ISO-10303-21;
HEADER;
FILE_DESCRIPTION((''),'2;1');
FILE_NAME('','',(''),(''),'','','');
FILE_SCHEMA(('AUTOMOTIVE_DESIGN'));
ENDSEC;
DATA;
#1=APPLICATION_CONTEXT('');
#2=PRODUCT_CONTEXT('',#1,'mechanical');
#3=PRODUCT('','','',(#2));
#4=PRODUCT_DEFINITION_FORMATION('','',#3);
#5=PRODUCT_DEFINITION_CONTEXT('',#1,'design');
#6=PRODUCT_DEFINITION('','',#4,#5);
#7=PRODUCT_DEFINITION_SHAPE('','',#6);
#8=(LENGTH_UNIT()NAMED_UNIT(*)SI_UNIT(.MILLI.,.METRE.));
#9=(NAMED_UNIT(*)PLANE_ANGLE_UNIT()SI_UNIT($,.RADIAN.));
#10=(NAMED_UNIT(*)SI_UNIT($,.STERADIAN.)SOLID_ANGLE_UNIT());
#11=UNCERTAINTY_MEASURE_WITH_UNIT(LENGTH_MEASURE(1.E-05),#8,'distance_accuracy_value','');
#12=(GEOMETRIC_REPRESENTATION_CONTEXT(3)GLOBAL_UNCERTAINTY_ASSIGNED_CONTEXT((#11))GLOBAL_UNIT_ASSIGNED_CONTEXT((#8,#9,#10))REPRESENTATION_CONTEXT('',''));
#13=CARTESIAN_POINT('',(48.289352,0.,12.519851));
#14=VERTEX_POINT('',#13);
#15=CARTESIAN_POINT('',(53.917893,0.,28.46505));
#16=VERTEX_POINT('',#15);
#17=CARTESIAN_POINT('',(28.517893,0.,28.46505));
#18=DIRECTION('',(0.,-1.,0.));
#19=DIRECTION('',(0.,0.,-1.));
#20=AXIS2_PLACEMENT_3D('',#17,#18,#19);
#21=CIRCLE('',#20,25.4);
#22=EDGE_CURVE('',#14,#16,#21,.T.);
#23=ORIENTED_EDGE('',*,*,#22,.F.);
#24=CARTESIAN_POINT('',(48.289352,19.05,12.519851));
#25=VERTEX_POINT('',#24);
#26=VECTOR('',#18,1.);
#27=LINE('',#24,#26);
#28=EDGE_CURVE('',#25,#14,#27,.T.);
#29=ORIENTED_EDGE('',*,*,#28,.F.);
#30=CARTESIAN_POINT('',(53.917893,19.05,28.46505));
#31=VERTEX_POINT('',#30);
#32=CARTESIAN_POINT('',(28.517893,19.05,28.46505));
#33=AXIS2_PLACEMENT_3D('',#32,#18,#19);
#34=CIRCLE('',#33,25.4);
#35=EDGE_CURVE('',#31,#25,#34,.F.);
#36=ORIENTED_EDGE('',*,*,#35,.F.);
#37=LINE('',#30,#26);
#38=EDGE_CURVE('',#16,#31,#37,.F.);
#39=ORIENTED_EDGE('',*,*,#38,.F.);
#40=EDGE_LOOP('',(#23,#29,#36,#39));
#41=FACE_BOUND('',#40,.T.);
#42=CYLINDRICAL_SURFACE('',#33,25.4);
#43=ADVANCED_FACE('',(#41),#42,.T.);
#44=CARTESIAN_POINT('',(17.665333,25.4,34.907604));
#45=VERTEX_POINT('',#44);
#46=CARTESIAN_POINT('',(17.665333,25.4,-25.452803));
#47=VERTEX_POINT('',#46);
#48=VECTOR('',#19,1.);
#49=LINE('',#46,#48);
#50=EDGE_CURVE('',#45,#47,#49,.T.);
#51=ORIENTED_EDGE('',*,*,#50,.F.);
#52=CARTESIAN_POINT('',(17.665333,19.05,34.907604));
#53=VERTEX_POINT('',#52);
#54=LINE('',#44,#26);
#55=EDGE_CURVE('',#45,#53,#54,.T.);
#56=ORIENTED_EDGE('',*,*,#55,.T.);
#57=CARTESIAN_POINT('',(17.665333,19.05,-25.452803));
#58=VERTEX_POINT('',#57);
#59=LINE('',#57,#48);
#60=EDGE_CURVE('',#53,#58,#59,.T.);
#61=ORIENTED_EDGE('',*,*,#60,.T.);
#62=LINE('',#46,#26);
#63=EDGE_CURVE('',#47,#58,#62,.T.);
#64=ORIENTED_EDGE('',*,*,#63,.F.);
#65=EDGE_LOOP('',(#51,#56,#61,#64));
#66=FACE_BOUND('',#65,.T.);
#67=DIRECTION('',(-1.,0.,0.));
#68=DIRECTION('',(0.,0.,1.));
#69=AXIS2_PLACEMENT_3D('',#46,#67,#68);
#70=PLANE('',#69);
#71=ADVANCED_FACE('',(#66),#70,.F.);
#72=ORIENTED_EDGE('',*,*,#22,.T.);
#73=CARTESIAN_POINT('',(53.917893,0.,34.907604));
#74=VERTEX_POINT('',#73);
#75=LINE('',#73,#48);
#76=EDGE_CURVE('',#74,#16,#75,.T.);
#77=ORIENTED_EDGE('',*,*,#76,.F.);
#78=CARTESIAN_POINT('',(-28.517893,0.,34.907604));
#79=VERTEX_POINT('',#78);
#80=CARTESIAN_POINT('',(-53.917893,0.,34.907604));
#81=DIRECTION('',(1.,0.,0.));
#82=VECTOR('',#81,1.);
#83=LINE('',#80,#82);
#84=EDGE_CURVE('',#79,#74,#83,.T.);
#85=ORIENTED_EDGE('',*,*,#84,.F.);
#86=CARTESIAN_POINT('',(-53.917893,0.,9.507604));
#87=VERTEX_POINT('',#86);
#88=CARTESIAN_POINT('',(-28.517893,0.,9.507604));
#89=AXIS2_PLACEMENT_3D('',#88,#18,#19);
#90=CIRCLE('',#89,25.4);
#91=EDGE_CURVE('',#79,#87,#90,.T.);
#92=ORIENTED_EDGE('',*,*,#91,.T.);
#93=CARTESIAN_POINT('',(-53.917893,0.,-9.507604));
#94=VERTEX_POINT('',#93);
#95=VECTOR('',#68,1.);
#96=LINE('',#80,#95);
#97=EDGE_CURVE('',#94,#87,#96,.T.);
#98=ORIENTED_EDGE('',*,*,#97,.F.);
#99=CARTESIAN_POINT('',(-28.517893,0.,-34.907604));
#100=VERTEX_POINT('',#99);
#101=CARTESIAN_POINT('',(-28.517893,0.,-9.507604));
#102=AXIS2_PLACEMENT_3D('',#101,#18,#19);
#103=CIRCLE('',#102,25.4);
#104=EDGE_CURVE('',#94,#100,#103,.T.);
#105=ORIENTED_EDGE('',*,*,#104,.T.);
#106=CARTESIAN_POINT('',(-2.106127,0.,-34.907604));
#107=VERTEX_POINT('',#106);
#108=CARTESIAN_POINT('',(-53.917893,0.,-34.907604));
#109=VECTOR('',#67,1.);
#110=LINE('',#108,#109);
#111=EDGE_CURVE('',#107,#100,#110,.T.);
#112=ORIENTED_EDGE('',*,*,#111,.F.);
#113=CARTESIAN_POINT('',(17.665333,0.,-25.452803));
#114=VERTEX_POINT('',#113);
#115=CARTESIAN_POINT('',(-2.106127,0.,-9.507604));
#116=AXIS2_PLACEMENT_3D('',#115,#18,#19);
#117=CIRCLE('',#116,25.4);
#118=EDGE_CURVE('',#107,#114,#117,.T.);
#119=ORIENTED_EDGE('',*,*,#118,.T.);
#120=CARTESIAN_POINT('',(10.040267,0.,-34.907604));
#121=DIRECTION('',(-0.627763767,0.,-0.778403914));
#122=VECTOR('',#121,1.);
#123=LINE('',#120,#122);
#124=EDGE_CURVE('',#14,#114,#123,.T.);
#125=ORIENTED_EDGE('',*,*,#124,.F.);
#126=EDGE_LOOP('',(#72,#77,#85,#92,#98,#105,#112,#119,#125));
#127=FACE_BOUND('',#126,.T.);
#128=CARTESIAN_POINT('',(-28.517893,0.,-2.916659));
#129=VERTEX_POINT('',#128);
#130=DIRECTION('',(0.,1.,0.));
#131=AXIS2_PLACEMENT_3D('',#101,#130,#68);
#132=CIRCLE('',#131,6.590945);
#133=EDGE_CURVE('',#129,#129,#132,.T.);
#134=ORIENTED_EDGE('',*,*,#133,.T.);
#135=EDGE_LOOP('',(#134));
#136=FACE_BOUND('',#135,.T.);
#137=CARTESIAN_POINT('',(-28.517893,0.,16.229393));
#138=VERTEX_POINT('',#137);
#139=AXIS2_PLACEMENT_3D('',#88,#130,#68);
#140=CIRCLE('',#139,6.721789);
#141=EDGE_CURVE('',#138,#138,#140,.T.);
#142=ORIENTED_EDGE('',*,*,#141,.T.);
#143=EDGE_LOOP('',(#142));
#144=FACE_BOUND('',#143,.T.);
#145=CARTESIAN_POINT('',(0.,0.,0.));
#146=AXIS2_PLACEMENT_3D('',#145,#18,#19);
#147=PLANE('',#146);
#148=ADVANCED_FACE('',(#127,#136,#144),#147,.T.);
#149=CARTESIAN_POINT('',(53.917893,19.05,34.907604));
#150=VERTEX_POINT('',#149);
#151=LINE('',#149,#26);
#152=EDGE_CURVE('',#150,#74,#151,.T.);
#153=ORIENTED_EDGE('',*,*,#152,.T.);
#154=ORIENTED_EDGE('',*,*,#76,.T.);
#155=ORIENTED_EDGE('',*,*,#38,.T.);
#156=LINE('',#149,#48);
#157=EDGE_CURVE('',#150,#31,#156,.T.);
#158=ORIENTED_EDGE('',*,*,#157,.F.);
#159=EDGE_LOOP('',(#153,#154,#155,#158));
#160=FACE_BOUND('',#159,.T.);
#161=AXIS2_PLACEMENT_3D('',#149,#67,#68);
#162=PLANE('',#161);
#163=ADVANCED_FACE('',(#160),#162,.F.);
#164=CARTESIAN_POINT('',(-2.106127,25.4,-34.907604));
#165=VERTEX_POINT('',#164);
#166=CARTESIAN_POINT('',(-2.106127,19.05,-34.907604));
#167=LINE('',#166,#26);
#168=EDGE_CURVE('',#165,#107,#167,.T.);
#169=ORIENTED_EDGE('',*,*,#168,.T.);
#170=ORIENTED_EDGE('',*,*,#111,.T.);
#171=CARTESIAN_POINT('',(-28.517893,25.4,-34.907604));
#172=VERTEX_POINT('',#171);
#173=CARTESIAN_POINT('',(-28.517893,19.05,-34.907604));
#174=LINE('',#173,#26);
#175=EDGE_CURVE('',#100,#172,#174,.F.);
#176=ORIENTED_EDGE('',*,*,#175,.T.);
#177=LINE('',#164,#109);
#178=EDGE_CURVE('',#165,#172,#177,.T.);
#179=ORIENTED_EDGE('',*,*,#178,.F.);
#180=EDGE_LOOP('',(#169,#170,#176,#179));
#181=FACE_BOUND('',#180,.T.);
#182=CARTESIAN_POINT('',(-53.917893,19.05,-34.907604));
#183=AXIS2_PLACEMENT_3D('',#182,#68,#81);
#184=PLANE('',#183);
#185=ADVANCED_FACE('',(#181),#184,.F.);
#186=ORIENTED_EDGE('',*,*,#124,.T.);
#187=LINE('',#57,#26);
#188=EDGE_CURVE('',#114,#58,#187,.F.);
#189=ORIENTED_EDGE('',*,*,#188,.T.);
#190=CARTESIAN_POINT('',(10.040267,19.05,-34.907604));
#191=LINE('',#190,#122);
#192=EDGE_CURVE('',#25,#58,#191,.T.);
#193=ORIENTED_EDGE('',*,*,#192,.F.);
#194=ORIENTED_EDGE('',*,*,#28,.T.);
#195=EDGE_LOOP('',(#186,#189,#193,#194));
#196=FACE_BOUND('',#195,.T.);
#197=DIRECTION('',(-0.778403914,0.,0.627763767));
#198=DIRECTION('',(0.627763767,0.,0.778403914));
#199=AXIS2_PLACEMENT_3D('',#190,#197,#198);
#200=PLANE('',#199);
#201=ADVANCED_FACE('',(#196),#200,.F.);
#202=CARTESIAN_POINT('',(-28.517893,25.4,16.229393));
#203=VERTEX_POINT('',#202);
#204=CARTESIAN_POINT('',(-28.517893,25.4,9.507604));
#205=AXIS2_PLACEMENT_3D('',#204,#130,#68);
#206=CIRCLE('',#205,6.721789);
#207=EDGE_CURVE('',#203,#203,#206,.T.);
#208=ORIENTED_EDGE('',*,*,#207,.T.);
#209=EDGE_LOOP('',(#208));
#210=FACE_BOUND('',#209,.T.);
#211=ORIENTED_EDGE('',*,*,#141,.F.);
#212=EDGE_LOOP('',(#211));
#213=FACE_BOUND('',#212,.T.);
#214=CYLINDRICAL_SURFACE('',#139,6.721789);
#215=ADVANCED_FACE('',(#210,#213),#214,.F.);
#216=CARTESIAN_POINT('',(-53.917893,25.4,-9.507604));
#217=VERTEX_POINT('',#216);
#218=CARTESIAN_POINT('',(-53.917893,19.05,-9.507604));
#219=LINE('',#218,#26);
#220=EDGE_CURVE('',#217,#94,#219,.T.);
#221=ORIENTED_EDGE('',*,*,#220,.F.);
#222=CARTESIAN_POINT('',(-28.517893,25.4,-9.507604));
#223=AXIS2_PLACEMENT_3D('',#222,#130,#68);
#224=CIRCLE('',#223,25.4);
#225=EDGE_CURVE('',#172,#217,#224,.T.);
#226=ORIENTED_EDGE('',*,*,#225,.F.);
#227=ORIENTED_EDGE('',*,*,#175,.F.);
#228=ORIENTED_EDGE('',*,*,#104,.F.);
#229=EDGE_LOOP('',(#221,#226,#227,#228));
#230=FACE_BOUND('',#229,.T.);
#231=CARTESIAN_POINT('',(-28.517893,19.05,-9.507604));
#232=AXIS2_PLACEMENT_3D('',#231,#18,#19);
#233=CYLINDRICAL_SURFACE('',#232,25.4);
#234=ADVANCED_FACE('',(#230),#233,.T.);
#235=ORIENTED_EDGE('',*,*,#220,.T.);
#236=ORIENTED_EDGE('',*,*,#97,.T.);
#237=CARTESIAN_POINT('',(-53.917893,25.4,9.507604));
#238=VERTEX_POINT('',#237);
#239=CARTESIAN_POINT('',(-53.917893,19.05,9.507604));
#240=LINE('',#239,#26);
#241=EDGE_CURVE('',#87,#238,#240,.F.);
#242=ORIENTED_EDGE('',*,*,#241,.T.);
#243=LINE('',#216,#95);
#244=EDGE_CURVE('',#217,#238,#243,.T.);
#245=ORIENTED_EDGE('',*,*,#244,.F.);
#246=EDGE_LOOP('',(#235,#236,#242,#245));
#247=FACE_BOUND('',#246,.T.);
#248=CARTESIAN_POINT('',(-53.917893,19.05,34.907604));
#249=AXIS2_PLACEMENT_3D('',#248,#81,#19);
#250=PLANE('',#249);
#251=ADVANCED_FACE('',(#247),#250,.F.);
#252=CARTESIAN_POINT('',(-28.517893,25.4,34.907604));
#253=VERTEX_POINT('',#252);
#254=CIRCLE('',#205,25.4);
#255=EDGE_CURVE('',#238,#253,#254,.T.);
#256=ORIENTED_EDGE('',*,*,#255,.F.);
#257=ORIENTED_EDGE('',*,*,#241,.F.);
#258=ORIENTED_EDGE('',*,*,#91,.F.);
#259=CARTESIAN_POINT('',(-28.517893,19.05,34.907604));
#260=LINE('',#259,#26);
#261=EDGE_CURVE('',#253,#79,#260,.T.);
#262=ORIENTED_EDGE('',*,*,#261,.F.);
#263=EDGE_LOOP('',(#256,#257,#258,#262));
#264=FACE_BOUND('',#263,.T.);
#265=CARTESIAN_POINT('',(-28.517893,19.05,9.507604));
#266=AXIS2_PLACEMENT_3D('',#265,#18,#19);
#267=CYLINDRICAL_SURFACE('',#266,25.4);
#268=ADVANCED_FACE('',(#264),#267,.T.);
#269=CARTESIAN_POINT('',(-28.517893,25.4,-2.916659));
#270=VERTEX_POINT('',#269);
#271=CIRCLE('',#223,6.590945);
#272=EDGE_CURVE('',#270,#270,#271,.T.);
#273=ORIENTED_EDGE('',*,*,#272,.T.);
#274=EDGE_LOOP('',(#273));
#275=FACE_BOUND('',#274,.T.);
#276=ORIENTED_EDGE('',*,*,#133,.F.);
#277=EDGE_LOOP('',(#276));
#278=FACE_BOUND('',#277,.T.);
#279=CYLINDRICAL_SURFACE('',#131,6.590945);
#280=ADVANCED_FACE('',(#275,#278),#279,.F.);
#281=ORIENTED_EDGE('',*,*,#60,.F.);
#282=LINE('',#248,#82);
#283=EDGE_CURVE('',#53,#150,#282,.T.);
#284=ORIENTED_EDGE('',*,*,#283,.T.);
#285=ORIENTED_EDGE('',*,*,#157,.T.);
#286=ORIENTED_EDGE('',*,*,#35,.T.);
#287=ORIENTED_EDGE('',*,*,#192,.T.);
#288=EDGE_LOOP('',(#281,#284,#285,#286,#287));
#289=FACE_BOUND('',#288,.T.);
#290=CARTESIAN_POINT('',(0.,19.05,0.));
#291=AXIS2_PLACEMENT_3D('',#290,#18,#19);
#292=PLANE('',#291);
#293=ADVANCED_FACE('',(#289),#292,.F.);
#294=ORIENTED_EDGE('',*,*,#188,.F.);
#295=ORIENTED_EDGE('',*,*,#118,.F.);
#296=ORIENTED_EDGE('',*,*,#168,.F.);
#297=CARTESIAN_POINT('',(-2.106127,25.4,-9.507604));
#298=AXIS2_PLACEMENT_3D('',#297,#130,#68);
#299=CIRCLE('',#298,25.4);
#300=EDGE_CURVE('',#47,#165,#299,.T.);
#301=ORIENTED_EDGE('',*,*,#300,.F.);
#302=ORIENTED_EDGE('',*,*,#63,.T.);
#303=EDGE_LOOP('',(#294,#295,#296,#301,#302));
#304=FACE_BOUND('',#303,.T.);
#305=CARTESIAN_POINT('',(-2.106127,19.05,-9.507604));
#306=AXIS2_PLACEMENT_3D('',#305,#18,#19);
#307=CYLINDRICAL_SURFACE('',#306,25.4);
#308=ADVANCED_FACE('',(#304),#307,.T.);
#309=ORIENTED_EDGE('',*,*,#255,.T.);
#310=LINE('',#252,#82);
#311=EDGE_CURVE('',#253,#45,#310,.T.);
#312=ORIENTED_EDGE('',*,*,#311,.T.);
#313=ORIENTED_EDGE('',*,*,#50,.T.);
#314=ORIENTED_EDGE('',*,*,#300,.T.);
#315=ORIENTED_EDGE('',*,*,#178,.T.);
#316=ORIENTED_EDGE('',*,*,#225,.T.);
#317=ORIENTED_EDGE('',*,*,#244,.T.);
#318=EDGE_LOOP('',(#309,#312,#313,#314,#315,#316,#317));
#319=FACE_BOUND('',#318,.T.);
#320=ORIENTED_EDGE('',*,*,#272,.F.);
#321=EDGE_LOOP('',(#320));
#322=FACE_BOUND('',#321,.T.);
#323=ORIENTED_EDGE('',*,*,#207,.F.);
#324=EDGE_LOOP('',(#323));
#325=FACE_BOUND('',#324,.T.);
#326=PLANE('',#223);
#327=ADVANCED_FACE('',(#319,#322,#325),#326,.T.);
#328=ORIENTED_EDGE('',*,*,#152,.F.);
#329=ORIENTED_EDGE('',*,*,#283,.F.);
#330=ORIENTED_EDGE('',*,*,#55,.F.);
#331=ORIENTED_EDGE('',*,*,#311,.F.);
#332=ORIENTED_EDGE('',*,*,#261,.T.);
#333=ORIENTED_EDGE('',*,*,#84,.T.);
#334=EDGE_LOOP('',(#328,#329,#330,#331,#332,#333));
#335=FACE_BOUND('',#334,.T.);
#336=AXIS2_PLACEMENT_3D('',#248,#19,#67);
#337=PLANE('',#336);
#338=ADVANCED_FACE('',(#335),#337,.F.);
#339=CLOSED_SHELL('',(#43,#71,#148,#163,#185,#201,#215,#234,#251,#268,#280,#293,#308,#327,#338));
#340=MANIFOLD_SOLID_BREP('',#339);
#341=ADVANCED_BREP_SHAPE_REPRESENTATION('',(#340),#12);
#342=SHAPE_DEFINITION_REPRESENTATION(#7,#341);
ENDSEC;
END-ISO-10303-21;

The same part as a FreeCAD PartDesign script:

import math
import FreeCAD as App
import Part
import Sketcher
Q = App.Units.Quantity


def edges_at(feature, points):
    """Names of the edges that pass closest to the given points."""
    edges = feature.Shape.Edges
    near = lambda p: min(range(len(edges)), key=lambda i: edges[i].distToShape(Part.Vertex(*p))[0])
    return sorted({f"Edge{near(p) + 1}" for p in points})

doc = App.newDocument("Part")
body = doc.addObject("PartDesign::Body", "Body")

# Sketch on XZ plane
sketch1 = body.newObject("Sketcher::SketchObject", "Sketch")
sketch1.AttachmentSupport = (doc.getObject("XZ_Plane"), [""])
sketch1.MapMode = "FlatFace"
sketch1.addGeometry(Part.LineSegment(App.Vector(54, 19, 0), App.Vector(10, -35, 0)), False)
sketch1.addGeometry(Part.LineSegment(App.Vector(10, -35, 0), App.Vector(-54, -35, 0)), False)
sketch1.addGeometry(Part.LineSegment(App.Vector(-54, -35, 0), App.Vector(-54, 35, 0)), False)
sketch1.addGeometry(Part.LineSegment(App.Vector(-54, 35, 0), App.Vector(54, 35, 0)), False)
sketch1.addGeometry(Part.LineSegment(App.Vector(54, 35, 0), App.Vector(54, 19, 0)), False)
sketch1.addConstraint(Sketcher.Constraint("Coincident", 0, 2, 1, 1))
sketch1.addConstraint(Sketcher.Constraint("Coincident", 1, 2, 2, 1))
sketch1.addConstraint(Sketcher.Constraint("Coincident", 2, 2, 3, 1))
sketch1.addConstraint(Sketcher.Constraint("Coincident", 3, 2, 4, 1))
sketch1.addConstraint(Sketcher.Constraint("Coincident", 4, 2, 0, 1))
sketch1.addConstraint(Sketcher.Constraint("Horizontal", 1))
sketch1.addConstraint(Sketcher.Constraint("Vertical", 2))
sketch1.addConstraint(Sketcher.Constraint("Horizontal", 3))
sketch1.addConstraint(Sketcher.Constraint("Vertical", 4))
sketch1.addConstraint(Sketcher.Constraint("Symmetric", 1, 2, 3, 2, -1, 1))
sketch1.addConstraint(Sketcher.Constraint("DistanceX", 1, 2, 1, 1, 63.958159))
sketch1.addConstraint(Sketcher.Constraint("DistanceY", 4, 2, 4, 1, 15.40857))
sketch1.addConstraint(Sketcher.Constraint("DistanceX", 3, 1, 3, 2, 107.835785))
sketch1.addConstraint(Sketcher.Constraint("DistanceY", 2, 1, 2, 2, 69.815208))
pad1 = body.newObject("PartDesign::Pad", "Pad")
pad1.Profile = sketch1
pad1.Length = Q("0.75 in")
pad1.Reversed = True
doc.recompute()

fillet = body.newObject("PartDesign::Fillet", "Fillet")
fillet.Base = (pad1, edges_at(pad1, [
    (-53.918, 9.525, -34.908),
    (10.04, 9.525, -34.908),
    (53.918, 9.525, 19.499),
    (-53.918, 9.525, 34.908),
]))
fillet.Radius = Q("1 in")

# Sketch on XZ plane
sketch2 = body.newObject("Sketcher::SketchObject", "Sketch001")
sketch2.AttachmentSupport = (doc.getObject("XZ_Plane"), [""])
sketch2.MapMode = "FlatFace"
sketch2.AttachmentOffset = App.Placement(App.Vector(0, 0, -0.75 * 25.4), App.Rotation())
sketch2.addGeometry(Part.LineSegment(App.Vector(18, 35, 0), App.Vector(18, -25, 0)), False)
sketch2.addGeometry(Part.ArcOfCircle(Part.Circle(App.Vector(-2, -10, 0), App.Vector(0, 0, 1), 25), math.radians(-90), math.radians(-39)), False)
sketch2.addGeometry(Part.LineSegment(App.Vector(-2, -35, 0), App.Vector(-29, -35, 0)), False)
sketch2.addGeometry(Part.ArcOfCircle(Part.Circle(App.Vector(-29, -10, 0), App.Vector(0, 0, 1), 25), math.radians(180), math.radians(270)), False)
sketch2.addGeometry(Part.LineSegment(App.Vector(-54, -10, 0), App.Vector(-54, 10, 0)), False)
sketch2.addGeometry(Part.ArcOfCircle(Part.Circle(App.Vector(-29, 10, 0), App.Vector(0, 0, 1), 25), math.radians(90), math.radians(180)), False)
sketch2.addGeometry(Part.LineSegment(App.Vector(-29, 35, 0), App.Vector(18, 35, 0)), False)
sketch2.addConstraint(Sketcher.Constraint("Coincident", 0, 2, 1, 2))
sketch2.addConstraint(Sketcher.Constraint("Tangent", 1, 1, 2, 1))
sketch2.addConstraint(Sketcher.Constraint("Tangent", 2, 2, 3, 2))
sketch2.addConstraint(Sketcher.Constraint("Tangent", 3, 1, 4, 1))
sketch2.addConstraint(Sketcher.Constraint("Tangent", 4, 2, 5, 2))
sketch2.addConstraint(Sketcher.Constraint("Tangent", 5, 1, 6, 1))
sketch2.addConstraint(Sketcher.Constraint("Coincident", 6, 2, 0, 1))
sketch2.addConstraint(Sketcher.Constraint("Vertical", 0))
sketch2.addConstraint(Sketcher.Constraint("Horizontal", 2))
sketch2.addConstraint(Sketcher.Constraint("Vertical", 4))
sketch2.addConstraint(Sketcher.Constraint("Horizontal", 6))
sketch2.addConstraint(Sketcher.Constraint("Equal", 1, 3))
sketch2.addConstraint(Sketcher.Constraint("Equal", 3, 5))
sketch2.addConstraint(Sketcher.Constraint("Radius", 1, Q("1 in")))
sketch2.addConstraint(Sketcher.Constraint("DistanceY", 0, 2, 1, 3, 15.9452))
sketch2.addConstraint(Sketcher.Constraint("DistanceX", 2, 2, 2, 1, 26.411766))
sketch2.addConstraint(Sketcher.Constraint("DistanceY", 0, 2, 0, 1, 60.360407))
sketch2.addConstraint(Sketcher.Constraint("DistanceX", 1, 3, -1, 1, 2.106127))
sketch2.addConstraint(Sketcher.Constraint("DistanceY", 1, 3, -1, 1, 9.507604))
pad2 = body.newObject("PartDesign::Pad", "Pad001")
pad2.Profile = sketch2
pad2.Length = Q("0.25 in")
pad2.Reversed = True

# Sketch on XZ plane
sketch3 = body.newObject("Sketcher::SketchObject", "Sketch002")
sketch3.AttachmentSupport = (doc.getObject("XZ_Plane"), [""])
sketch3.MapMode = "FlatFace"
sketch3.AttachmentOffset = App.Placement(App.Vector(0, 0, -1 * 25.4), App.Rotation())
sketch3.addGeometry(Part.Circle(App.Vector(-29, 10, 0), App.Vector(0, 0, 1), 7), False)
sketch3.addGeometry(Part.Circle(App.Vector(-29, -10, 0), App.Vector(0, 0, 1), 7), False)
sketch3.addConstraint(Sketcher.Constraint("Symmetric", 0, 3, 1, 3, -1))
sketch3.addConstraint(Sketcher.Constraint("Diameter", 1, 13.18189))
sketch3.addConstraint(Sketcher.Constraint("Diameter", 0, 13.443578))
sketch3.addConstraint(Sketcher.Constraint("DistanceX", 0, 3, -1, 1, 28.517893))
sketch3.addConstraint(Sketcher.Constraint("DistanceY", -1, 1, 0, 3, 9.507604))
pocket1 = body.newObject("PartDesign::Pocket", "Pocket")
pocket1.Profile = sketch3
pocket1.Type = "ThroughAll"
pocket1.Reversed = True

doc.recompute()
